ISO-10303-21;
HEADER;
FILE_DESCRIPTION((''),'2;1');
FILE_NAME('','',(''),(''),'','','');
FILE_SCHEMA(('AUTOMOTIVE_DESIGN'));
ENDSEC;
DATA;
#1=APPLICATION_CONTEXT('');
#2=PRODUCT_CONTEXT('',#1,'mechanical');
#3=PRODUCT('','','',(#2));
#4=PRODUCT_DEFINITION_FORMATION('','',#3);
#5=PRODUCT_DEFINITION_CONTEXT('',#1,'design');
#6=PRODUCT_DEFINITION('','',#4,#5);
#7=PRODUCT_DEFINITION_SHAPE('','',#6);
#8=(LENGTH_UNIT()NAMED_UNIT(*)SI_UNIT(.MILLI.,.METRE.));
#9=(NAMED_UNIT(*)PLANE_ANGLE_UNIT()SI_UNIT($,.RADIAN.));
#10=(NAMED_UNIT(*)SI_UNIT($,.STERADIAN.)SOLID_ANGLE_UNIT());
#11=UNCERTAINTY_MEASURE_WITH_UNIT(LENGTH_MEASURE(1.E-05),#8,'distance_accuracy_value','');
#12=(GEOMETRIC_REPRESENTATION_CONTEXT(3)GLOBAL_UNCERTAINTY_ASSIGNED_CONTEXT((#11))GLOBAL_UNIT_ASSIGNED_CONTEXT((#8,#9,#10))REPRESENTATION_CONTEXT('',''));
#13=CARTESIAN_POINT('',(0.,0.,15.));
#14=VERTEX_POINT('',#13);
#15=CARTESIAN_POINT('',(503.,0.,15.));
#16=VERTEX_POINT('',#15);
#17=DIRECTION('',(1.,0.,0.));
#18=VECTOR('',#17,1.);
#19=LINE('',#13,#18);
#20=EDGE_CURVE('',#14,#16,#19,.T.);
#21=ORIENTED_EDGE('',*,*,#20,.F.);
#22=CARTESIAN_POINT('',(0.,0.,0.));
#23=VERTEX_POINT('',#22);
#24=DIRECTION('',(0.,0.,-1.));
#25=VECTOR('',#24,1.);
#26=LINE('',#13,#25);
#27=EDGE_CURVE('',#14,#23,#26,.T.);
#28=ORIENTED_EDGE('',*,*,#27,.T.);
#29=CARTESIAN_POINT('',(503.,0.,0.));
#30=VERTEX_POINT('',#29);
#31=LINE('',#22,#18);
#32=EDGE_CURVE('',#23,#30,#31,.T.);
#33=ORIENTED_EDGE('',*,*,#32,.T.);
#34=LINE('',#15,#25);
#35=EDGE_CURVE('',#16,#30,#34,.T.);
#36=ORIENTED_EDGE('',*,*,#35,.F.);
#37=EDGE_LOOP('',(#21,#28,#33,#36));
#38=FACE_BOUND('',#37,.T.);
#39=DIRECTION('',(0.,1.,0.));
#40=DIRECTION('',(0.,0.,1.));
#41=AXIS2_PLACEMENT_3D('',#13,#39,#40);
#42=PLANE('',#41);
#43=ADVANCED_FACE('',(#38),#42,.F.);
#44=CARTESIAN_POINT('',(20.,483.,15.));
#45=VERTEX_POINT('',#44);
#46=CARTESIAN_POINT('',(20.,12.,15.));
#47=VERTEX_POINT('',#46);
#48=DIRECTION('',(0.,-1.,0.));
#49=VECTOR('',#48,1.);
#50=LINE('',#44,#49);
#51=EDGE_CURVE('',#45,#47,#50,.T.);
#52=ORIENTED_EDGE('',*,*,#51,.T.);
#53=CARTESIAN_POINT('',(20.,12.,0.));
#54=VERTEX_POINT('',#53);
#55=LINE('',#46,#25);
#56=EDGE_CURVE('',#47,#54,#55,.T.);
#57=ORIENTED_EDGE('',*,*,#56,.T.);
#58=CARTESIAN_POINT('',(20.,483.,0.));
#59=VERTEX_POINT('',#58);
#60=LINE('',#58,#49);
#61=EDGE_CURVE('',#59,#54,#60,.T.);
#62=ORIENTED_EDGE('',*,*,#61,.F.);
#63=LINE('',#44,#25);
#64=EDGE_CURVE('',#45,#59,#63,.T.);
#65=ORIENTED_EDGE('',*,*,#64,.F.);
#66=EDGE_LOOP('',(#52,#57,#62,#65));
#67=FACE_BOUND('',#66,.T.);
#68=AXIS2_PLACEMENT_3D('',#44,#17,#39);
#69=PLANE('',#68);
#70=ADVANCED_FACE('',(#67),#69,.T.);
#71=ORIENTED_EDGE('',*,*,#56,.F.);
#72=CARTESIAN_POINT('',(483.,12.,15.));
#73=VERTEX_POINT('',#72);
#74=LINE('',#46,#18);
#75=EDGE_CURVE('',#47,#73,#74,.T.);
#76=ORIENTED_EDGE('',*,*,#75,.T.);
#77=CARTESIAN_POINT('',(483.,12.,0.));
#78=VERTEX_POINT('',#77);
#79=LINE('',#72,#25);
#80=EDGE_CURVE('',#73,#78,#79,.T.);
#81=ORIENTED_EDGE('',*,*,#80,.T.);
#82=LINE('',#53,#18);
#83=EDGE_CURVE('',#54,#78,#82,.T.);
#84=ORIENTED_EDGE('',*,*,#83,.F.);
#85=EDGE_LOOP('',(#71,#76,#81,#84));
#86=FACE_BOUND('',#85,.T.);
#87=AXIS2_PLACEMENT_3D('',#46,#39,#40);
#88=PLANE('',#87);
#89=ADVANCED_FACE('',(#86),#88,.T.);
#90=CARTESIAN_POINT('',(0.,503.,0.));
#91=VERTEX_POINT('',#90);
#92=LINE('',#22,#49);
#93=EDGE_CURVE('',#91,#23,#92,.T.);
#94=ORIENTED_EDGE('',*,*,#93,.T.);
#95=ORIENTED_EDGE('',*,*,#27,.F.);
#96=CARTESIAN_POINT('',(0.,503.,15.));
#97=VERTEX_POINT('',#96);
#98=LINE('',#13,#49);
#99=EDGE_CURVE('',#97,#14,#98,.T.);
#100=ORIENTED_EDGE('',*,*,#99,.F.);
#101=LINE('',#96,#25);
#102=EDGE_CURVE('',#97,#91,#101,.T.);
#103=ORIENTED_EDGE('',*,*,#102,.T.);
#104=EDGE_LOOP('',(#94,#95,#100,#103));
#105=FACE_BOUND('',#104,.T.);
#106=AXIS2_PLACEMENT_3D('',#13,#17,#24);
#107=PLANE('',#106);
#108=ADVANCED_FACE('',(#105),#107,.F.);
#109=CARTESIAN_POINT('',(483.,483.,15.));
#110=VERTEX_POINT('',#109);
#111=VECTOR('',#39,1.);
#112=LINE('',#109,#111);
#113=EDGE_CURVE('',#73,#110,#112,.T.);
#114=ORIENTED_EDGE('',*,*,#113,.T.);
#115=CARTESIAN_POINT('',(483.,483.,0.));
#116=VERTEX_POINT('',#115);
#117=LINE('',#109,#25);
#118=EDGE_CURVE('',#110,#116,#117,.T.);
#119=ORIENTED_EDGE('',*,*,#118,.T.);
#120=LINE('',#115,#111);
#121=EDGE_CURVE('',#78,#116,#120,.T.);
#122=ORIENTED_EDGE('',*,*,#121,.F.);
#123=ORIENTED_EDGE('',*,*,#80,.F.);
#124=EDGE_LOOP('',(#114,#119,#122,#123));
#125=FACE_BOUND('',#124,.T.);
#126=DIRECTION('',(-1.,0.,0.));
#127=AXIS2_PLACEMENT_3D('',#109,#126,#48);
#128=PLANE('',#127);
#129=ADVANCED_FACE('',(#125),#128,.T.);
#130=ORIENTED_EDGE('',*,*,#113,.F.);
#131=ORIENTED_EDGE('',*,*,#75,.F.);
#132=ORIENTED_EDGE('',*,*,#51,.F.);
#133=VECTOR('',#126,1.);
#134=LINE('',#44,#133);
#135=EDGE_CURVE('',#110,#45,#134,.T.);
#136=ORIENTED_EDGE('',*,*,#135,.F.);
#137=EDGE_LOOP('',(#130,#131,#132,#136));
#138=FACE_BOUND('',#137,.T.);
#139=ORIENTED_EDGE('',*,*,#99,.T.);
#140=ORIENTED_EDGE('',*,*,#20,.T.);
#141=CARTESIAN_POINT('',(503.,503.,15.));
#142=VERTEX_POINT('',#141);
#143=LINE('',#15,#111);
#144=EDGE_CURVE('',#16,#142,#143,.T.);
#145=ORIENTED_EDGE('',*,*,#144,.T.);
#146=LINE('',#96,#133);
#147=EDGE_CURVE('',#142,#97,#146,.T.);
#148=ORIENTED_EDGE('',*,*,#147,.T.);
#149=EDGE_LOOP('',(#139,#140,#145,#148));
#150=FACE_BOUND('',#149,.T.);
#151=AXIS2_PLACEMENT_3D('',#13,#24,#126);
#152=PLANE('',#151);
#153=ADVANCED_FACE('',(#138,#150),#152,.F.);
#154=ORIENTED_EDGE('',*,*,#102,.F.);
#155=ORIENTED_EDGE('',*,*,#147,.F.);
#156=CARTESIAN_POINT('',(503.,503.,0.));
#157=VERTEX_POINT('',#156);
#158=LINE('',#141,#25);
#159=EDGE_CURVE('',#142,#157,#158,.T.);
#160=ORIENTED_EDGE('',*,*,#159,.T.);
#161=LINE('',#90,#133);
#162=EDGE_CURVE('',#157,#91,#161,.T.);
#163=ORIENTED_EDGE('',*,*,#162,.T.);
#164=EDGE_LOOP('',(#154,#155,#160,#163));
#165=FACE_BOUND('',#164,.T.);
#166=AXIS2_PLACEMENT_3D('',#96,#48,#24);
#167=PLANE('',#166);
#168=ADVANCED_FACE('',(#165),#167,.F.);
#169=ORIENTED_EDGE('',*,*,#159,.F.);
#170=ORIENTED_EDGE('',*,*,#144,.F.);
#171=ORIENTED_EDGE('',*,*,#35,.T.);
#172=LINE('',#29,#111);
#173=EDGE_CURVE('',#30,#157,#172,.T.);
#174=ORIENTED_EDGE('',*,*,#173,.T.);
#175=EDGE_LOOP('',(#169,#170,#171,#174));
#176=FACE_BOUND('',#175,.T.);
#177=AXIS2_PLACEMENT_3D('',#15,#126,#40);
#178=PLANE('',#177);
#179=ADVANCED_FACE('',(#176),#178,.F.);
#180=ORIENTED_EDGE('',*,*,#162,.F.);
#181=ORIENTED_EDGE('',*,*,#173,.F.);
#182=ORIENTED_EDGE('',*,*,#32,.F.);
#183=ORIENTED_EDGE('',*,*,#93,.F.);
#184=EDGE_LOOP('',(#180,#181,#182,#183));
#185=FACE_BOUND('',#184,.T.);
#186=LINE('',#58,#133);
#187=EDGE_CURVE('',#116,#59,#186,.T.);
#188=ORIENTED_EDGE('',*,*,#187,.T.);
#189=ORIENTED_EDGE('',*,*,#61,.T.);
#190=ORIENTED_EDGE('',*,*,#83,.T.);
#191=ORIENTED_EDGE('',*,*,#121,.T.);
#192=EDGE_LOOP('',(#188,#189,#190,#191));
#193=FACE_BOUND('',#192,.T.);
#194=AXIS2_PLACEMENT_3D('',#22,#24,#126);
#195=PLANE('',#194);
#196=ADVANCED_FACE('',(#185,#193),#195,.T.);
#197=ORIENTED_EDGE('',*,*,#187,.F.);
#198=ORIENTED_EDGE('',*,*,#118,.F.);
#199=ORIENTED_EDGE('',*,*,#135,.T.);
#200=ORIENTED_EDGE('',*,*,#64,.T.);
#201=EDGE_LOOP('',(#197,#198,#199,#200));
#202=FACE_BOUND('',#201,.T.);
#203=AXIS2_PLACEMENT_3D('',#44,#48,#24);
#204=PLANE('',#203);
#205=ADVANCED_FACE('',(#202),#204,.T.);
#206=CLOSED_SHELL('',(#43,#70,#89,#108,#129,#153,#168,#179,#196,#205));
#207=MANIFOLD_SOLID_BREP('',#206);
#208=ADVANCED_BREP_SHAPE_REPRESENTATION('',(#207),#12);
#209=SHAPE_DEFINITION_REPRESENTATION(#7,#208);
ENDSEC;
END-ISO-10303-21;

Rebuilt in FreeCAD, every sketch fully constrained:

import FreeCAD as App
import Part
import Sketcher
from FreeCAD import Vector

doc = App.newDocument("Part")
body = doc.addObject("PartDesign::Body", "Body")

# Sketch on XY plane
sketch1 = body.newObject("Sketcher::SketchObject", "Sketch")
sketch1.AttachmentSupport = (doc.getObject("XY_Plane"), [""])
sketch1.MapMode = "FlatFace"
sketch1.addGeometry([
    Part.LineSegment(Vector(0, 503, 0), Vector(0, 0, 0)),  # 0
    Part.LineSegment(Vector(0, 0, 0), Vector(503, 0, 0)),  # 1
    Part.LineSegment(Vector(503, 0, 0), Vector(503, 503, 0)),  # 2
    Part.LineSegment(Vector(503, 503, 0), Vector(0, 503, 0)),  # 3
    Part.LineSegment(Vector(483, 12, 0), Vector(20, 12, 0)),  # 4
    Part.LineSegment(Vector(20, 12, 0), Vector(20, 483, 0)),  # 5
    Part.LineSegment(Vector(20, 483, 0), Vector(483, 483, 0)),  # 6
    Part.LineSegment(Vector(483, 483, 0), Vector(483, 12, 0)),  # 7
], False)
sketch1.addConstraint([
    Sketcher.Constraint("Coincident", 0, 2, 1, 1),
    Sketcher.Constraint("Coincident", 1, 2, 2, 1),
    Sketcher.Constraint("Coincident", 2, 2, 3, 1),
    Sketcher.Constraint("Coincident", 3, 2, 0, 1),
    Sketcher.Constraint("Coincident", 4, 2, 5, 1),
    Sketcher.Constraint("Coincident", 5, 2, 6, 1),
    Sketcher.Constraint("Coincident", 6, 2, 7, 1),
    Sketcher.Constraint("Coincident", 7, 2, 4, 1),
    Sketcher.Constraint("Vertical", 0),
    Sketcher.Constraint("Horizontal", 1),
    Sketcher.Constraint("Vertical", 2),
    Sketcher.Constraint("Horizontal", 3),
    Sketcher.Constraint("Horizontal", 4),
    Sketcher.Constraint("Vertical", 5),
    Sketcher.Constraint("Horizontal", 6),
    Sketcher.Constraint("Vertical", 7),
    Sketcher.Constraint("Coincident", 0, 2, -1, 1),
    Sketcher.Constraint("Equal", 3, 0),
    Sketcher.Constraint("DistanceX", 1, 1, 1, 2, 503.0),
    Sketcher.Constraint("DistanceX", 4, 2, 4, 1, 463.0),
    Sketcher.Constraint("DistanceY", 5, 1, 5, 2, 471.0),
    Sketcher.Constraint("DistanceX", -1, 1, 4, 2, 20.0),
    Sketcher.Constraint("DistanceY", -1, 1, 4, 2, 12.0),
])
pad1 = body.newObject("PartDesign::Pad", "Pad")
pad1.Profile = sketch1
pad1.Length = 15

doc.recompute()
